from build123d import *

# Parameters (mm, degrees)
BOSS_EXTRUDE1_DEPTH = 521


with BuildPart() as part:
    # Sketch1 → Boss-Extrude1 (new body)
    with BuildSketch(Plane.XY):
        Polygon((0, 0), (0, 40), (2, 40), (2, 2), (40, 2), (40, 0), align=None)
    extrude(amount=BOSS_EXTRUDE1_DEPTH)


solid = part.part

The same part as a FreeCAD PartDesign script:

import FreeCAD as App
import Part
import Sketcher
Q = App.Units.Quantity


def add_polygon(sketch, points):
    """Adds a closed chain of lines whose ends are joined by coincident constraints."""
    first, n = sketch.GeometryCount, len(points)
    for a, b in zip(points, points[1:] + points[:1]):
        sketch.addGeometry(Part.LineSegment(App.Vector(*a, 0), App.Vector(*b, 0)), False)
    for i in range(n):
        sketch.addConstraint(Sketcher.Constraint("Coincident", first + i, 2, first + (i + 1) % n, 1))

doc = App.newDocument("Part")
params = doc.addObject("Spreadsheet::Sheet", "Params")
for row, (alias, value) in enumerate([
    ("sketch1_width", "40 mm"),
    ("sketch1_width2", "38 mm"),
    ("pad1_length", "521 mm"),
], start=1):
    params.set(f"A{row}", alias)
    params.set(f"B{row}", "=" + value)
    params.setAlias(f"B{row}", alias)

body = doc.addObject("PartDesign::Body", "Body")

# Sketch on XY plane
sketch1 = body.newObject("Sketcher::SketchObject", "Sketch")
sketch1.AttachmentSupport = (doc.getObject("XY_Plane"), [""])
sketch1.MapMode = "FlatFace"
add_polygon(sketch1, [(0, 40), (0, 0), (40, 0), (40, 2), (2, 2), (2, 40)])  # lines 0-5
sketch1.addConstraint([
    Sketcher.Constraint("Vertical", 0),
    Sketcher.Constraint("Horizontal", 1),
    Sketcher.Constraint("Vertical", 2),
    Sketcher.Constraint("Horizontal", 3),
    Sketcher.Constraint("Vertical", 4),
    Sketcher.Constraint("Horizontal", 5),
    Sketcher.Constraint("Coincident", 0, 2, -1, 1),
    Sketcher.Constraint("Equal", 1, 0),
    Sketcher.Constraint("Equal", 5, 2),
    Sketcher.Constraint("DistanceX", 1, 1, 1, 2, Q("40 mm")),
    Sketcher.Constraint("DistanceX", 3, 2, 3, 1, Q("38 mm")),
])
sketch1.setExpression("Constraints[15]", "Params.sketch1_width")
sketch1.setExpression("Constraints[16]", "Params.sketch1_width2")
pad1 = body.newObject("PartDesign::Pad", "Pad")
pad1.Profile = sketch1
pad1.setExpression("Length", "Params.pad1_length")

doc.recompute()
